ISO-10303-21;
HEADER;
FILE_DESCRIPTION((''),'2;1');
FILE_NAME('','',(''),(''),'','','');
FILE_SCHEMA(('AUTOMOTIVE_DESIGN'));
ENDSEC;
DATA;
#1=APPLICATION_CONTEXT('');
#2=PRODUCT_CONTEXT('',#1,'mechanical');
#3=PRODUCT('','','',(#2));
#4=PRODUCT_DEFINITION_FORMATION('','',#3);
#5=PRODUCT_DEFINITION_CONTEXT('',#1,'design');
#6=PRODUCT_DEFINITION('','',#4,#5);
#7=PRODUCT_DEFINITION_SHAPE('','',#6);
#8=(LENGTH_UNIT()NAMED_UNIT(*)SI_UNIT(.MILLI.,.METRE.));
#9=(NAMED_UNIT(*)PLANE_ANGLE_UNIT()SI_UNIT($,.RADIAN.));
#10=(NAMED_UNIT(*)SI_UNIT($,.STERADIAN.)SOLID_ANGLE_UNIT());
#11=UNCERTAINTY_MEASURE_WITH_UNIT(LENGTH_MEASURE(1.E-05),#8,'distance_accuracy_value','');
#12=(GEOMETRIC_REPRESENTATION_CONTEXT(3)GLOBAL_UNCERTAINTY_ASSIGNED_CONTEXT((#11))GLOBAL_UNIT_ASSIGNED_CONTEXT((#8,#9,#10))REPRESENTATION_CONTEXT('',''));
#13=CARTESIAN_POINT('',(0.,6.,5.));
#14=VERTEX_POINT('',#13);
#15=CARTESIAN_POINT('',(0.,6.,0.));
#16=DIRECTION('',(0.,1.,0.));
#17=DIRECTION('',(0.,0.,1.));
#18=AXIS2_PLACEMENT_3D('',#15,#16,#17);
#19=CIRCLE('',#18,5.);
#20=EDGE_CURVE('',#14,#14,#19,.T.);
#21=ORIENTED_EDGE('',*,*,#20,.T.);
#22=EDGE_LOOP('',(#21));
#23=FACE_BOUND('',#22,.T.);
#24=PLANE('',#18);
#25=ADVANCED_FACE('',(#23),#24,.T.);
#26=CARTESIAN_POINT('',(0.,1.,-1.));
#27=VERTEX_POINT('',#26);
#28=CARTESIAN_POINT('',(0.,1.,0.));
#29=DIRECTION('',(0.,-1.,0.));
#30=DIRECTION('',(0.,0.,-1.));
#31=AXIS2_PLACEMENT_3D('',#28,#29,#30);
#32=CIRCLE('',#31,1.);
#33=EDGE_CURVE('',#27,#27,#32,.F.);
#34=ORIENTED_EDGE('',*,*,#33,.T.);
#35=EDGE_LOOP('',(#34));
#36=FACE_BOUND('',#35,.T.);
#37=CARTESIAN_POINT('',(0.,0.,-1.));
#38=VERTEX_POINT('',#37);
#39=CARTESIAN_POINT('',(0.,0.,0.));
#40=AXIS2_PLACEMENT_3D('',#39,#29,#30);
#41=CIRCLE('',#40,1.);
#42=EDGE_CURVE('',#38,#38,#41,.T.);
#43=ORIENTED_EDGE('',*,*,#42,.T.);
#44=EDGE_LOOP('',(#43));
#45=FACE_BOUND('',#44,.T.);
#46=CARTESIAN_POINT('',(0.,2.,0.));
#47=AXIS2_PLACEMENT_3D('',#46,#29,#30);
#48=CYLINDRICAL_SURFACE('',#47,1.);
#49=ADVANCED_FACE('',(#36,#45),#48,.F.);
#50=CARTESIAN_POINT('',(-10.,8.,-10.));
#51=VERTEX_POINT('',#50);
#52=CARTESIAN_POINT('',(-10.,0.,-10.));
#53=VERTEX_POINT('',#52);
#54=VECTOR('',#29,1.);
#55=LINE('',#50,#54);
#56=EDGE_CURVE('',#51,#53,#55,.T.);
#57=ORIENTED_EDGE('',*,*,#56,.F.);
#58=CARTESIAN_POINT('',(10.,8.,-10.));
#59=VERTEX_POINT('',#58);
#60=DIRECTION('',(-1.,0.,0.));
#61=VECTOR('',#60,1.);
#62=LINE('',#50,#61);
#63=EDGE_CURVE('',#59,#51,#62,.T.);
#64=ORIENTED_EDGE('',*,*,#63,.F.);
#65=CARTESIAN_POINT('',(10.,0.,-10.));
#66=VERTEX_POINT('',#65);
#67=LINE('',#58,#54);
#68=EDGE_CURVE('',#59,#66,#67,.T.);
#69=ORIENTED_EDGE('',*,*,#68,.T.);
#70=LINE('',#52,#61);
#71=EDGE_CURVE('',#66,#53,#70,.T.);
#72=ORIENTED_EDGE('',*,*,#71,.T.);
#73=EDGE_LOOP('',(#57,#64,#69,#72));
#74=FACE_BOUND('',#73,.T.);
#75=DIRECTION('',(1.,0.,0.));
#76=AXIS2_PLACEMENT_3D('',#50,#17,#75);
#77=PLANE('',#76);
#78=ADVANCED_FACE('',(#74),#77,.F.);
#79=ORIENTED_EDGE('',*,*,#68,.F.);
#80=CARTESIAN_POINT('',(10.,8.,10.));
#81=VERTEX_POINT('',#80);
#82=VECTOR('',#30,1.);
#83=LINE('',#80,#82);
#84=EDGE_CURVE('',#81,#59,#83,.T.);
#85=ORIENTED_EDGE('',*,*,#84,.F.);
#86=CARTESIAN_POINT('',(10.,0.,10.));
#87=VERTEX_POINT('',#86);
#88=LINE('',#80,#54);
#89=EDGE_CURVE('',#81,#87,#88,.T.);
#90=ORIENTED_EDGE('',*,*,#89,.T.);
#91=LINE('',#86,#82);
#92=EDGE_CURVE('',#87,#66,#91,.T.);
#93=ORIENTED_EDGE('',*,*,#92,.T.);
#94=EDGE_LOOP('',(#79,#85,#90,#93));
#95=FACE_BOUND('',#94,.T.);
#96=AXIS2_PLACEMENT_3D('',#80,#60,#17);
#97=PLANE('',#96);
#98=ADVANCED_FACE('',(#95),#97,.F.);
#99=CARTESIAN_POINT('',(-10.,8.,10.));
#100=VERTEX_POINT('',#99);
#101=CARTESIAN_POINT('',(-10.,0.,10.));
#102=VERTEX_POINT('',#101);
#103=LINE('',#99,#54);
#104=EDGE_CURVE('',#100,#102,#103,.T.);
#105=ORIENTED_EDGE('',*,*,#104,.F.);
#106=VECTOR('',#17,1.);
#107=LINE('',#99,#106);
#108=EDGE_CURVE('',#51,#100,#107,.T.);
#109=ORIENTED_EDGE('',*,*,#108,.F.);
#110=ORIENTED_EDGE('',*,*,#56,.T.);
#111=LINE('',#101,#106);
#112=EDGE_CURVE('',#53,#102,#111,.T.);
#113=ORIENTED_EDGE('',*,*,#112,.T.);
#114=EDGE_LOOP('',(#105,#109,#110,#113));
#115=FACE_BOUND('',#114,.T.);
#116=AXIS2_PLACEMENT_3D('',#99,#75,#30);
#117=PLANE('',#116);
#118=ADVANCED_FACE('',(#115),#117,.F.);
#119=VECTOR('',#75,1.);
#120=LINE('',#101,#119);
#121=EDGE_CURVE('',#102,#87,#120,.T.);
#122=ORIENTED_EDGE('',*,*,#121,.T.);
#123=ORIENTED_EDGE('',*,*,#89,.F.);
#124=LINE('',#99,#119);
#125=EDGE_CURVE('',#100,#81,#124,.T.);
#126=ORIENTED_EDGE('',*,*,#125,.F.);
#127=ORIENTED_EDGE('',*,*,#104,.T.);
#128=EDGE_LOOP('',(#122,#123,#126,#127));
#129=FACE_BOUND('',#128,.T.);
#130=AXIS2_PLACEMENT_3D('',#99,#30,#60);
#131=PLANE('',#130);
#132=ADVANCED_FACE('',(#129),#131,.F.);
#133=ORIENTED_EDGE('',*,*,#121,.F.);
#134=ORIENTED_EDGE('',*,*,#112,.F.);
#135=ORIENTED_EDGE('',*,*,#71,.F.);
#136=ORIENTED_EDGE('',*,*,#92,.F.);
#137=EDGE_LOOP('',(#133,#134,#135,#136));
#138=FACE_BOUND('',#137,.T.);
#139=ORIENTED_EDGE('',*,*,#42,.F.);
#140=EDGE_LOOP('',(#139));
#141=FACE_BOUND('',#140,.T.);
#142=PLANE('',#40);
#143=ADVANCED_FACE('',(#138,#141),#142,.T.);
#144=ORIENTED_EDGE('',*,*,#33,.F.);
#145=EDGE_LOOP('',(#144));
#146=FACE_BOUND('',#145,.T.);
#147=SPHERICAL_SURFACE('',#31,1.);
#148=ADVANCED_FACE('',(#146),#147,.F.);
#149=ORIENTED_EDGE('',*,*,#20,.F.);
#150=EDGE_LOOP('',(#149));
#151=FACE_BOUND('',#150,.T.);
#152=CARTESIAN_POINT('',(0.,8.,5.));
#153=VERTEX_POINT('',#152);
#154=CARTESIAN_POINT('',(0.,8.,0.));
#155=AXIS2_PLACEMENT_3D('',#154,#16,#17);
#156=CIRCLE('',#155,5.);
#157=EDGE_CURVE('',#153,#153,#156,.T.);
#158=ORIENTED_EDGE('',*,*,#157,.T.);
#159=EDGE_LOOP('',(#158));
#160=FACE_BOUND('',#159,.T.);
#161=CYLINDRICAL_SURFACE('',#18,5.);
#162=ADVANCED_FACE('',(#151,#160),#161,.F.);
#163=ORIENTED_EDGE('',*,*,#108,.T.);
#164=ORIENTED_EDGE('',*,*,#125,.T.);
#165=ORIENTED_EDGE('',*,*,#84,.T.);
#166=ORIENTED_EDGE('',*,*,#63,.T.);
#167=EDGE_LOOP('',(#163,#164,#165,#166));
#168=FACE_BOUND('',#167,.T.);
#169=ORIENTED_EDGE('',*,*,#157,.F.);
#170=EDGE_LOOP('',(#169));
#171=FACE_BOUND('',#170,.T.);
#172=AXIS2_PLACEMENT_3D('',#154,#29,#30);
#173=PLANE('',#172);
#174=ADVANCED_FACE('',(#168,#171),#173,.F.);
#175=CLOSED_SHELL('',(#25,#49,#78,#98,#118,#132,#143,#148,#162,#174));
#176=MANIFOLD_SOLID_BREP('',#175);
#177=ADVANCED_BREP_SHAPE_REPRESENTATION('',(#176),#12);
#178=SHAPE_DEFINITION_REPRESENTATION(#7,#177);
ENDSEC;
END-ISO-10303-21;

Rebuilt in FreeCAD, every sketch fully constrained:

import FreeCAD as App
import Part
import Sketcher
from FreeCAD import Vector
Q = App.Units.Quantity


def edges_at(feature, points):
    """Names of the edges that pass closest to the given points."""
    edges = feature.Shape.Edges
    near = lambda p: min(range(len(edges)), key=lambda i: edges[i].distToShape(Part.Vertex(*p))[0])
    return sorted({f"Edge{near(p) + 1}" for p in points})


def add_polygon(sketch, points):
    """Adds a closed chain of lines whose ends are joined by coincident constraints."""
    first, n = sketch.GeometryCount, len(points)
    for a, b in zip(points, points[1:] + points[:1]):
        sketch.addGeometry(Part.LineSegment(App.Vector(*a, 0), App.Vector(*b, 0)), False)
    for i in range(n):
        sketch.addConstraint(Sketcher.Constraint("Coincident", first + i, 2, first + (i + 1) % n, 1))

doc = App.newDocument("Part")
body = doc.addObject("PartDesign::Body", "Body")

# Sketch on XZ plane
sketch1 = body.newObject("Sketcher::SketchObject", "Sketch")
sketch1.AttachmentSupport = (doc.getObject("XZ_Plane"), [""])
sketch1.MapMode = "FlatFace"
add_polygon(sketch1, [(-10, -10), (-10, 10), (10, 10), (10, -10)])  # lines 0-3
sketch1.addConstraint([
    Sketcher.Constraint("Vertical", 0),
    Sketcher.Constraint("Horizontal", 1),
    Sketcher.Constraint("Vertical", 2),
    Sketcher.Constraint("Horizontal", 3),
    Sketcher.Constraint("Symmetric", 0, 2, 2, 2, -1, 1),
    Sketcher.Constraint("Equal", 3, 0),
    Sketcher.Constraint("DistanceX", 1, 1, 1, 2, Q("20 mm")),
])
pad1 = body.newObject("PartDesign::Pad", "Pad")
pad1.Profile = sketch1
pad1.Length = 8
pad1.Reversed = True

# Sketch on XZ plane
sketch2 = body.newObject("Sketcher::SketchObject", "Sketch001")
sketch2.AttachmentSupport = (doc.getObject("XZ_Plane"), [""])
sketch2.MapMode = "FlatFace"
sketch2.AttachmentOffset = App.Placement(Vector(0, 0, -8), App.Rotation())
sketch2.addGeometry(Part.Circle(Vector(0, 0, 0), Vector(0, 0, 1), 5), False)
sketch2.addConstraint([
    Sketcher.Constraint("Coincident", 0, 3, -1, 1),
    Sketcher.Constraint("Diameter", 0, Q("10 mm")),
])
pocket1 = body.newObject("PartDesign::Pocket", "Pocket")
pocket1.Profile = sketch2
pocket1.Length = 2
pocket1.Reversed = True

# Sketch on XZ plane
sketch3 = body.newObject("Sketcher::SketchObject", "Sketch002")
sketch3.AttachmentSupport = (doc.getObject("XZ_Plane"), [""])
sketch3.MapMode = "FlatFace"
sketch3.addGeometry(Part.Circle(Vector(0, 0, 0), Vector(0, 0, 1), 1), False)
sketch3.addConstraint([
    Sketcher.Constraint("Coincident", 0, 3, -1, 1),
    Sketcher.Constraint("Diameter", 0, Q("2 mm")),
])
pocket2 = body.newObject("PartDesign::Pocket", "Pocket001")
pocket2.Profile = sketch3
pocket2.Length = 2
doc.recompute()

fillet = body.newObject("PartDesign::Fillet", "Fillet")
fillet.Base = (pocket2, edges_at(pocket2, [(-1, 2, 0)]))
fillet.Radius = 1

doc.recompute()
